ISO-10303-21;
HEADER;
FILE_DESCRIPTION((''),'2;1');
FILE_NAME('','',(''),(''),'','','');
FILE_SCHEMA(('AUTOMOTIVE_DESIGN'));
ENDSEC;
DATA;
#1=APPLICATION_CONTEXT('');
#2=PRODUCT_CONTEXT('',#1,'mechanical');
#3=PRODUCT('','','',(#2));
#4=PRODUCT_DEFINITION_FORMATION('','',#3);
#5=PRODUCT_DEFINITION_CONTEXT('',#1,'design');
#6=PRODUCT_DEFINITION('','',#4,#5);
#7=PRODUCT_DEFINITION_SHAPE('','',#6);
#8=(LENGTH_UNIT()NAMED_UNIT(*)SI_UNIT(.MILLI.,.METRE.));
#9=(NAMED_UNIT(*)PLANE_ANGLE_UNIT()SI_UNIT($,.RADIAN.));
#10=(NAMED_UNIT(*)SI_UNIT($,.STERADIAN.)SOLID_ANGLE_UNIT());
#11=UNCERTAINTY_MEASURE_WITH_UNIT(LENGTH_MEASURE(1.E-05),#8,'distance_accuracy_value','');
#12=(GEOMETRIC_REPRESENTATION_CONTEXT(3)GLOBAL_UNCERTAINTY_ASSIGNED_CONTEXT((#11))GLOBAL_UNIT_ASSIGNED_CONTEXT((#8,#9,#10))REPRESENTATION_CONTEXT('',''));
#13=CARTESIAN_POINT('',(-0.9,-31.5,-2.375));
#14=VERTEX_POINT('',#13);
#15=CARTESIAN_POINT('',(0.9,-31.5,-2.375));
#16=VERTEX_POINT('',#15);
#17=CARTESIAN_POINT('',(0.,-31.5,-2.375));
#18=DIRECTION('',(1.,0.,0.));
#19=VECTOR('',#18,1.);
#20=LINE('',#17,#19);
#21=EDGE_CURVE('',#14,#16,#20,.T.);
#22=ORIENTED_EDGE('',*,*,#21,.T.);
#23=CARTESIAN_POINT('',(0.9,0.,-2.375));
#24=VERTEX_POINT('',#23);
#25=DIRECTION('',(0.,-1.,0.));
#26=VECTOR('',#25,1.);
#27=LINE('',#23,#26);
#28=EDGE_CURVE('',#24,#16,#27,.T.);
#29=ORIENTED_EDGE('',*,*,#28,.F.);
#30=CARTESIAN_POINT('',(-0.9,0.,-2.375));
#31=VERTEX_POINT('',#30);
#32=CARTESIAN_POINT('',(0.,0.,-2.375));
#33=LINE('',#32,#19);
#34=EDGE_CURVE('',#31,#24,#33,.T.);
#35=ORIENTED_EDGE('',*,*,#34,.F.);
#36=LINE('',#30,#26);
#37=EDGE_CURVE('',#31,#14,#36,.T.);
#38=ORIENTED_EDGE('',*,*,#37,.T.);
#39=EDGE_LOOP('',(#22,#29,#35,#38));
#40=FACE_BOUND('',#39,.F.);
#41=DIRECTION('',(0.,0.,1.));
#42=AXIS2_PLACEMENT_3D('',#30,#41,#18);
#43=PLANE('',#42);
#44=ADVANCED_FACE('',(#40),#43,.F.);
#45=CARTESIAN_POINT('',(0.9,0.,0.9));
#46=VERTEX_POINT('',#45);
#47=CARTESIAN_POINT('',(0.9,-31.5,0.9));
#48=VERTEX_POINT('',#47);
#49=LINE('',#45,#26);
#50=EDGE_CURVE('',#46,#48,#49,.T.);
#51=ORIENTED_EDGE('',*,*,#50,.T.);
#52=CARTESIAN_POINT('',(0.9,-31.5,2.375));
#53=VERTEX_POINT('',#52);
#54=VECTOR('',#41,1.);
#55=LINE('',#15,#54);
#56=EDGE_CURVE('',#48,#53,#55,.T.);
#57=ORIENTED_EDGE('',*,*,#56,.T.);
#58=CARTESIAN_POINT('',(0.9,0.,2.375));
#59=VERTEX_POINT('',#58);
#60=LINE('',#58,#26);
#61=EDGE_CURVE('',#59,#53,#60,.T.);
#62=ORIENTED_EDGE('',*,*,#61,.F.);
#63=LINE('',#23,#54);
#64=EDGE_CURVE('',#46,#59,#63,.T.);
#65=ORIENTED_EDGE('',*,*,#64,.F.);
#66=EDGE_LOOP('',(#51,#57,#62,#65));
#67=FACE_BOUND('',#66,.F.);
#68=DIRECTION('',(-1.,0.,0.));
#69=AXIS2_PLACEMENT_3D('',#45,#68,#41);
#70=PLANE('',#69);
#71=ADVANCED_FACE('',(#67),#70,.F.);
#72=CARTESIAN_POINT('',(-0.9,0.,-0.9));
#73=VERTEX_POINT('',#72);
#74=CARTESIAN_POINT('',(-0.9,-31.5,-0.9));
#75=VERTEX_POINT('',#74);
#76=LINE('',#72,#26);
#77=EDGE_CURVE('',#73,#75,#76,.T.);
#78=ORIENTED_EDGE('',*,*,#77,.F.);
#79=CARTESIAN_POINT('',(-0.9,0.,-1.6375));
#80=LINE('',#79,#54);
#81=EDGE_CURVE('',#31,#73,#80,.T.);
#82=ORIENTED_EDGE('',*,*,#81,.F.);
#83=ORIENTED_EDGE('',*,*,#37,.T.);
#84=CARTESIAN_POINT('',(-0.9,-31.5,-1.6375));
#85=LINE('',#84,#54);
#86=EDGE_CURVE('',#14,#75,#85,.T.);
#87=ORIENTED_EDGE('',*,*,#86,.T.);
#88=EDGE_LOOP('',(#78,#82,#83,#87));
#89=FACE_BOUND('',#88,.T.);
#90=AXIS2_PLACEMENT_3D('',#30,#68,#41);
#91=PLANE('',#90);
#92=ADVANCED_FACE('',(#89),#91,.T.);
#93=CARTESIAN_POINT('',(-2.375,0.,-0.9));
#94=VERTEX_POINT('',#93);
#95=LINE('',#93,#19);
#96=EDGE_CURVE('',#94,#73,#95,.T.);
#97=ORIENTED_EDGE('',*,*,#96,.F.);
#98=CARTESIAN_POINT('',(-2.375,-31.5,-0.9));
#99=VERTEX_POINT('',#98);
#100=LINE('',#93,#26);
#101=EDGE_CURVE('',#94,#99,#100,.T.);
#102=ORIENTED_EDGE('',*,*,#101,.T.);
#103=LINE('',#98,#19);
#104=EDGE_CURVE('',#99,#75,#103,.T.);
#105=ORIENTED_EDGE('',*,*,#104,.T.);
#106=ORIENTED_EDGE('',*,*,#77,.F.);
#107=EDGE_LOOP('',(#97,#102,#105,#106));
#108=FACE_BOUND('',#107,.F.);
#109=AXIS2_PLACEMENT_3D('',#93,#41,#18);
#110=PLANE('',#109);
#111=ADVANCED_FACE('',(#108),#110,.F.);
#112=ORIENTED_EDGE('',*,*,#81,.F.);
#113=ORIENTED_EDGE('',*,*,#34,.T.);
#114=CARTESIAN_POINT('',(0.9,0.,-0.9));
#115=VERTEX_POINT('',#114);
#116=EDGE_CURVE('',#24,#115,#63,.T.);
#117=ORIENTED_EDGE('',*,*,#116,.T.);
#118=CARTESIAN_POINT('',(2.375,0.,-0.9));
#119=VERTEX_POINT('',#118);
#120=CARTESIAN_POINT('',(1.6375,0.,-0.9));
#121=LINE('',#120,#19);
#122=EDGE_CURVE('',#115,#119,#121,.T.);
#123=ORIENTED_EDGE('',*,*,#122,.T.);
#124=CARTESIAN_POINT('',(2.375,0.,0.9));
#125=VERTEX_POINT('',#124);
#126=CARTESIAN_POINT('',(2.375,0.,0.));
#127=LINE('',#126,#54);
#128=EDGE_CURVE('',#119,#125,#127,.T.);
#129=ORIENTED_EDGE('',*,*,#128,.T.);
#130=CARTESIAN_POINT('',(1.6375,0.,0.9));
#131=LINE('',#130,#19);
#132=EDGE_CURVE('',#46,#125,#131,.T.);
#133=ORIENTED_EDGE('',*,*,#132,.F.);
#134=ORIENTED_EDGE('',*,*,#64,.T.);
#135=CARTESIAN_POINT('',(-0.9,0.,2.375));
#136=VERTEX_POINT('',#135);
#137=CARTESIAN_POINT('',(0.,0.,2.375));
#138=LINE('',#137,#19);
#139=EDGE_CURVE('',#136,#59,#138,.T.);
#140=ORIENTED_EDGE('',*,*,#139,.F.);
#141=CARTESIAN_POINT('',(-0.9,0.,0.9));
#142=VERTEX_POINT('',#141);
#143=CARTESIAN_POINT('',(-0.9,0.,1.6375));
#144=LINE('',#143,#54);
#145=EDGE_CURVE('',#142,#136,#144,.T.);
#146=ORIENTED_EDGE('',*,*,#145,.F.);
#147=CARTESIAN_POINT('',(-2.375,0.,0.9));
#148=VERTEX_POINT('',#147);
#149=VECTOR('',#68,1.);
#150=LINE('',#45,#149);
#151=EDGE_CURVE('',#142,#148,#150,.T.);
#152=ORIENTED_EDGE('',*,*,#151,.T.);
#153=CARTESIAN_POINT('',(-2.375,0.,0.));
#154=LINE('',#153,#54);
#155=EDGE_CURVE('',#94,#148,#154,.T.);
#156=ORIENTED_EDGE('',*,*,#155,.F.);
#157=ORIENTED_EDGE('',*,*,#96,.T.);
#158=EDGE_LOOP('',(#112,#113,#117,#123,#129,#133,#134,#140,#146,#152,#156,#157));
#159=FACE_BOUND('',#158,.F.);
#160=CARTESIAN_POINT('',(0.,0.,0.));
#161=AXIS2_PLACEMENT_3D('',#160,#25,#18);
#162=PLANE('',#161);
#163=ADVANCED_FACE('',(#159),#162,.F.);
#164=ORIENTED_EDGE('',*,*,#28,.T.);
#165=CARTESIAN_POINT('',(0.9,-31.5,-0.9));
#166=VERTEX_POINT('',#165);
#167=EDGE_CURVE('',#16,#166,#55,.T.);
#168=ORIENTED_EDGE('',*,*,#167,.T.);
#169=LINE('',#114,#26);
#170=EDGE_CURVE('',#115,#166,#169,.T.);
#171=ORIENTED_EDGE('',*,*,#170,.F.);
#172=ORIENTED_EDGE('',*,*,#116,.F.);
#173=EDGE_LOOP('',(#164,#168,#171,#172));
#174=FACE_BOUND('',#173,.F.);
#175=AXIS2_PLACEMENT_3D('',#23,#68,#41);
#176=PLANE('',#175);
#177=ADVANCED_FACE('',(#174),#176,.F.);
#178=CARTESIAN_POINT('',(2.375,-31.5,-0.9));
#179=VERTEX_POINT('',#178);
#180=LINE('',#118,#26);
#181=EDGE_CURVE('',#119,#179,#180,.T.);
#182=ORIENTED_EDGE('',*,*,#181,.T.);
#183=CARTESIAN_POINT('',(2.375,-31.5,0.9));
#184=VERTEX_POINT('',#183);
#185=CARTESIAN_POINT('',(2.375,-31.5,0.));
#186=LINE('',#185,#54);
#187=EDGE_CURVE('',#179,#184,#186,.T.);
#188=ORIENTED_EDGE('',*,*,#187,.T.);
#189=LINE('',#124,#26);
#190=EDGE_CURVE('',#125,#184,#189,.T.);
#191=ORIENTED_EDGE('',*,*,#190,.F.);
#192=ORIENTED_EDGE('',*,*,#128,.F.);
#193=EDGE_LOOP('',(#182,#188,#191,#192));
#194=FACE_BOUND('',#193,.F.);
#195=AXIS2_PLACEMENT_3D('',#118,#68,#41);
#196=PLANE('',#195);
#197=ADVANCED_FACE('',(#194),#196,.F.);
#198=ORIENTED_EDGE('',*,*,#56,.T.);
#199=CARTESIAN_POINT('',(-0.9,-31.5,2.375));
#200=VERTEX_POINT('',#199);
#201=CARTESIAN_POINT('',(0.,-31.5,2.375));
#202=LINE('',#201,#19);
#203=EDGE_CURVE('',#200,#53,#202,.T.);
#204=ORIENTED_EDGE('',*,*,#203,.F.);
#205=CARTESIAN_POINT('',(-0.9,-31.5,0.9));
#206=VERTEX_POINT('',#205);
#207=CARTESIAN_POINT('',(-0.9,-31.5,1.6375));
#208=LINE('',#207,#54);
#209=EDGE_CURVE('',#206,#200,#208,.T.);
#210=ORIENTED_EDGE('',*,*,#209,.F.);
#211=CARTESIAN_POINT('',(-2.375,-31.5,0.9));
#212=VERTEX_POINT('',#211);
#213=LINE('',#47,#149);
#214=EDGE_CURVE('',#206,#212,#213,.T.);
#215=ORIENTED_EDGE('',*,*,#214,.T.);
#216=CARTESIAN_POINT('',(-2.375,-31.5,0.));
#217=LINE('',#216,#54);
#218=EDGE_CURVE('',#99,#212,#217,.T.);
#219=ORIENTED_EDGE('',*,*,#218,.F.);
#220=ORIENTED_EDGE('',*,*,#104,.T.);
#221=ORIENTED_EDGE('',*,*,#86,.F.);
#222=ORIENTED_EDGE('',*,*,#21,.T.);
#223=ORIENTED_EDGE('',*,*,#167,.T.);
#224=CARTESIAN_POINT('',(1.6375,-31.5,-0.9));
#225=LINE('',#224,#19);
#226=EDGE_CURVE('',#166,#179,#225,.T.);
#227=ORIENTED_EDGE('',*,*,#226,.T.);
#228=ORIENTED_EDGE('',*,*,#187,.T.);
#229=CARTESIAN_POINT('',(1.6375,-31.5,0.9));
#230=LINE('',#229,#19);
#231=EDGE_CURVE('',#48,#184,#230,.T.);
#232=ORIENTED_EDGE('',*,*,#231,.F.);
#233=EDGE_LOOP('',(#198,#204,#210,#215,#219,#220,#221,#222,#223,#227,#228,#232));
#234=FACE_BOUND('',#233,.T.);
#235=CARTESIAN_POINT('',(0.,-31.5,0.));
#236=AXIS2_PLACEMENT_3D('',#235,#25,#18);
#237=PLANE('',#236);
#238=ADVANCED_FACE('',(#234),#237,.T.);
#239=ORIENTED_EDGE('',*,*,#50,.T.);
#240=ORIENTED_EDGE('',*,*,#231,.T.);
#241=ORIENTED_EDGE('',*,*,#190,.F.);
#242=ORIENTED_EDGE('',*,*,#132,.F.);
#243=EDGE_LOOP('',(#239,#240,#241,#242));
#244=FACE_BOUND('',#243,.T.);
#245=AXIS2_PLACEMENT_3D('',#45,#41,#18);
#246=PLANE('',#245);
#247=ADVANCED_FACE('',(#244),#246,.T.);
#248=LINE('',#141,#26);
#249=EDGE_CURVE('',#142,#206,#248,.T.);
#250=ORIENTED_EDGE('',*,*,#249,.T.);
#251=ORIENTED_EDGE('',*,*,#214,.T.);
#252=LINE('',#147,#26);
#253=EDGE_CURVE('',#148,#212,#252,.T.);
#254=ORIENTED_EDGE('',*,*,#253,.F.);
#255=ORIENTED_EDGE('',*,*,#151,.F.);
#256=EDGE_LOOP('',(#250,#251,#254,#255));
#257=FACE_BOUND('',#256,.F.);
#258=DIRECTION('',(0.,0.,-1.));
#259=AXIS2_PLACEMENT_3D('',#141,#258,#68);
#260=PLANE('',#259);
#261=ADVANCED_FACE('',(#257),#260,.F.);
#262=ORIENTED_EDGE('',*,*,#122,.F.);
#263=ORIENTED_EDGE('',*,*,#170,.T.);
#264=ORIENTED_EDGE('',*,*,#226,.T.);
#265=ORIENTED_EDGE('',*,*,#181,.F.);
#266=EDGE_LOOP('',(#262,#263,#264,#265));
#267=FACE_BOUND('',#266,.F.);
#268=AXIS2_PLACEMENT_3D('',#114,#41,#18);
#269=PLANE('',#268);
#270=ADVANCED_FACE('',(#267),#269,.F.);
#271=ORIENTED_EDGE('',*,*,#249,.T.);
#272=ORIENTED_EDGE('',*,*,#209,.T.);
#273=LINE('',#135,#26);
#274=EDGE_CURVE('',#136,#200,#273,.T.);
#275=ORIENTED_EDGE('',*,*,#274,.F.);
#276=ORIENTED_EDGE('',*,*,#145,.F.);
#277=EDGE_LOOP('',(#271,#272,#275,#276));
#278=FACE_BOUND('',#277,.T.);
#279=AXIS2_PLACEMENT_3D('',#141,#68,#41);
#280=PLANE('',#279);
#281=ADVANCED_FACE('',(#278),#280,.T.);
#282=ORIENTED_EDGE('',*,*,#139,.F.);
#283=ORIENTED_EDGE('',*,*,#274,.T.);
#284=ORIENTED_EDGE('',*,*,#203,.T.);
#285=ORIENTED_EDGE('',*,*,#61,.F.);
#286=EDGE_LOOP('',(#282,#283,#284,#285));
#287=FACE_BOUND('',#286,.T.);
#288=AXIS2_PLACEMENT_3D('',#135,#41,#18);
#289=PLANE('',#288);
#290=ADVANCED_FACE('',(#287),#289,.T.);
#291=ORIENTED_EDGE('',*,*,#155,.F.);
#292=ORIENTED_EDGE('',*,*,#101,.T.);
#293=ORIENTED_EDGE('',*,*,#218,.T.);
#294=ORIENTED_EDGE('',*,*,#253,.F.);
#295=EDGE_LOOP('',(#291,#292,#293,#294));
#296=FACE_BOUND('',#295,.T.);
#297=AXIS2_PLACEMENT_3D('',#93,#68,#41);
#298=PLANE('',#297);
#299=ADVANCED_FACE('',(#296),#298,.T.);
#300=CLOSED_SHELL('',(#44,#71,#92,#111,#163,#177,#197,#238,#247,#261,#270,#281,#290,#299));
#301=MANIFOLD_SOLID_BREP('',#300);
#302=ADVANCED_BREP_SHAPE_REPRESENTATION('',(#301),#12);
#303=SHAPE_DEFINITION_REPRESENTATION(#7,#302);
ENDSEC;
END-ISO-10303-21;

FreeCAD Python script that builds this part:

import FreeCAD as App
import Part
import Sketcher


def add_polygon(sketch, points):
    """Adds a closed chain of lines whose ends are joined by coincident constraints."""
    first, n = sketch.GeometryCount, len(points)
    for a, b in zip(points, points[1:] + points[:1]):
        sketch.addGeometry(Part.LineSegment(App.Vector(*a, 0), App.Vector(*b, 0)), False)
    for i in range(n):
        sketch.addConstraint(Sketcher.Constraint("Coincident", first + i, 2, first + (i + 1) % n, 1))

doc = App.newDocument("Part")
body = doc.addObject("PartDesign::Body", "Body")

sketch1 = doc.addObject("Sketcher::SketchObject", "Sketch")
body.addObject(sketch1)
sketch1.AttachmentSupport = (doc.XZ_Plane, [""])
sketch1.MapMode = "FlatFace"
add_polygon(sketch1, [(0.9, 2.4), (-0.9, 2.4), (-0.9, 0.9), (-2.4, 0.9), (-2.4, -0.9), (-0.9, -0.9), (-0.9, -2.4), (0.9, -2.4), (0.9, -0.9), (2.4, -0.9), (2.4, 0.9), (0.9, 0.9)])
sketch1.addConstraint(Sketcher.Constraint("Horizontal", 0))
sketch1.addConstraint(Sketcher.Constraint("Vertical", 1))
sketch1.addConstraint(Sketcher.Constraint("Horizontal", 2))
sketch1.addConstraint(Sketcher.Constraint("Vertical", 3))
sketch1.addConstraint(Sketcher.Constraint("Horizontal", 4))
sketch1.addConstraint(Sketcher.Constraint("Vertical", 5))
sketch1.addConstraint(Sketcher.Constraint("Horizontal", 6))
sketch1.addConstraint(Sketcher.Constraint("Vertical", 7))
sketch1.addConstraint(Sketcher.Constraint("Horizontal", 8))
sketch1.addConstraint(Sketcher.Constraint("Vertical", 9))
sketch1.addConstraint(Sketcher.Constraint("Horizontal", 10))
sketch1.addConstraint(Sketcher.Constraint("Vertical", 11))
sketch1.addConstraint(Sketcher.Constraint("Symmetric", 0, 2, 6, 2, -1, 1))
sketch1.addConstraint(Sketcher.Constraint("Symmetric", 2, 2, 8, 2, -1, 1))
sketch1.addConstraint(Sketcher.Constraint("Symmetric", 4, 2, 10, 2, -1, 1))
sketch1.addConstraint(Sketcher.Constraint("Symmetric", 4, 2, 7, 2, -2))
sketch1.addConstraint(Sketcher.Constraint("Equal", 10, 1))
sketch1.addConstraint(Sketcher.Constraint("Equal", 6, 3))
sketch1.addConstraint(Sketcher.Constraint("DistanceX", 0, 2, 0, 1, 1.8))
sketch1.addConstraint(Sketcher.Constraint("DistanceX", 2, 2, 2, 1, 1.475))
pad1 = doc.addObject("PartDesign::Pad", "Pad")
body.addObject(pad1)
pad1.Profile = sketch1
pad1.Length = 31.5

doc.recompute()
